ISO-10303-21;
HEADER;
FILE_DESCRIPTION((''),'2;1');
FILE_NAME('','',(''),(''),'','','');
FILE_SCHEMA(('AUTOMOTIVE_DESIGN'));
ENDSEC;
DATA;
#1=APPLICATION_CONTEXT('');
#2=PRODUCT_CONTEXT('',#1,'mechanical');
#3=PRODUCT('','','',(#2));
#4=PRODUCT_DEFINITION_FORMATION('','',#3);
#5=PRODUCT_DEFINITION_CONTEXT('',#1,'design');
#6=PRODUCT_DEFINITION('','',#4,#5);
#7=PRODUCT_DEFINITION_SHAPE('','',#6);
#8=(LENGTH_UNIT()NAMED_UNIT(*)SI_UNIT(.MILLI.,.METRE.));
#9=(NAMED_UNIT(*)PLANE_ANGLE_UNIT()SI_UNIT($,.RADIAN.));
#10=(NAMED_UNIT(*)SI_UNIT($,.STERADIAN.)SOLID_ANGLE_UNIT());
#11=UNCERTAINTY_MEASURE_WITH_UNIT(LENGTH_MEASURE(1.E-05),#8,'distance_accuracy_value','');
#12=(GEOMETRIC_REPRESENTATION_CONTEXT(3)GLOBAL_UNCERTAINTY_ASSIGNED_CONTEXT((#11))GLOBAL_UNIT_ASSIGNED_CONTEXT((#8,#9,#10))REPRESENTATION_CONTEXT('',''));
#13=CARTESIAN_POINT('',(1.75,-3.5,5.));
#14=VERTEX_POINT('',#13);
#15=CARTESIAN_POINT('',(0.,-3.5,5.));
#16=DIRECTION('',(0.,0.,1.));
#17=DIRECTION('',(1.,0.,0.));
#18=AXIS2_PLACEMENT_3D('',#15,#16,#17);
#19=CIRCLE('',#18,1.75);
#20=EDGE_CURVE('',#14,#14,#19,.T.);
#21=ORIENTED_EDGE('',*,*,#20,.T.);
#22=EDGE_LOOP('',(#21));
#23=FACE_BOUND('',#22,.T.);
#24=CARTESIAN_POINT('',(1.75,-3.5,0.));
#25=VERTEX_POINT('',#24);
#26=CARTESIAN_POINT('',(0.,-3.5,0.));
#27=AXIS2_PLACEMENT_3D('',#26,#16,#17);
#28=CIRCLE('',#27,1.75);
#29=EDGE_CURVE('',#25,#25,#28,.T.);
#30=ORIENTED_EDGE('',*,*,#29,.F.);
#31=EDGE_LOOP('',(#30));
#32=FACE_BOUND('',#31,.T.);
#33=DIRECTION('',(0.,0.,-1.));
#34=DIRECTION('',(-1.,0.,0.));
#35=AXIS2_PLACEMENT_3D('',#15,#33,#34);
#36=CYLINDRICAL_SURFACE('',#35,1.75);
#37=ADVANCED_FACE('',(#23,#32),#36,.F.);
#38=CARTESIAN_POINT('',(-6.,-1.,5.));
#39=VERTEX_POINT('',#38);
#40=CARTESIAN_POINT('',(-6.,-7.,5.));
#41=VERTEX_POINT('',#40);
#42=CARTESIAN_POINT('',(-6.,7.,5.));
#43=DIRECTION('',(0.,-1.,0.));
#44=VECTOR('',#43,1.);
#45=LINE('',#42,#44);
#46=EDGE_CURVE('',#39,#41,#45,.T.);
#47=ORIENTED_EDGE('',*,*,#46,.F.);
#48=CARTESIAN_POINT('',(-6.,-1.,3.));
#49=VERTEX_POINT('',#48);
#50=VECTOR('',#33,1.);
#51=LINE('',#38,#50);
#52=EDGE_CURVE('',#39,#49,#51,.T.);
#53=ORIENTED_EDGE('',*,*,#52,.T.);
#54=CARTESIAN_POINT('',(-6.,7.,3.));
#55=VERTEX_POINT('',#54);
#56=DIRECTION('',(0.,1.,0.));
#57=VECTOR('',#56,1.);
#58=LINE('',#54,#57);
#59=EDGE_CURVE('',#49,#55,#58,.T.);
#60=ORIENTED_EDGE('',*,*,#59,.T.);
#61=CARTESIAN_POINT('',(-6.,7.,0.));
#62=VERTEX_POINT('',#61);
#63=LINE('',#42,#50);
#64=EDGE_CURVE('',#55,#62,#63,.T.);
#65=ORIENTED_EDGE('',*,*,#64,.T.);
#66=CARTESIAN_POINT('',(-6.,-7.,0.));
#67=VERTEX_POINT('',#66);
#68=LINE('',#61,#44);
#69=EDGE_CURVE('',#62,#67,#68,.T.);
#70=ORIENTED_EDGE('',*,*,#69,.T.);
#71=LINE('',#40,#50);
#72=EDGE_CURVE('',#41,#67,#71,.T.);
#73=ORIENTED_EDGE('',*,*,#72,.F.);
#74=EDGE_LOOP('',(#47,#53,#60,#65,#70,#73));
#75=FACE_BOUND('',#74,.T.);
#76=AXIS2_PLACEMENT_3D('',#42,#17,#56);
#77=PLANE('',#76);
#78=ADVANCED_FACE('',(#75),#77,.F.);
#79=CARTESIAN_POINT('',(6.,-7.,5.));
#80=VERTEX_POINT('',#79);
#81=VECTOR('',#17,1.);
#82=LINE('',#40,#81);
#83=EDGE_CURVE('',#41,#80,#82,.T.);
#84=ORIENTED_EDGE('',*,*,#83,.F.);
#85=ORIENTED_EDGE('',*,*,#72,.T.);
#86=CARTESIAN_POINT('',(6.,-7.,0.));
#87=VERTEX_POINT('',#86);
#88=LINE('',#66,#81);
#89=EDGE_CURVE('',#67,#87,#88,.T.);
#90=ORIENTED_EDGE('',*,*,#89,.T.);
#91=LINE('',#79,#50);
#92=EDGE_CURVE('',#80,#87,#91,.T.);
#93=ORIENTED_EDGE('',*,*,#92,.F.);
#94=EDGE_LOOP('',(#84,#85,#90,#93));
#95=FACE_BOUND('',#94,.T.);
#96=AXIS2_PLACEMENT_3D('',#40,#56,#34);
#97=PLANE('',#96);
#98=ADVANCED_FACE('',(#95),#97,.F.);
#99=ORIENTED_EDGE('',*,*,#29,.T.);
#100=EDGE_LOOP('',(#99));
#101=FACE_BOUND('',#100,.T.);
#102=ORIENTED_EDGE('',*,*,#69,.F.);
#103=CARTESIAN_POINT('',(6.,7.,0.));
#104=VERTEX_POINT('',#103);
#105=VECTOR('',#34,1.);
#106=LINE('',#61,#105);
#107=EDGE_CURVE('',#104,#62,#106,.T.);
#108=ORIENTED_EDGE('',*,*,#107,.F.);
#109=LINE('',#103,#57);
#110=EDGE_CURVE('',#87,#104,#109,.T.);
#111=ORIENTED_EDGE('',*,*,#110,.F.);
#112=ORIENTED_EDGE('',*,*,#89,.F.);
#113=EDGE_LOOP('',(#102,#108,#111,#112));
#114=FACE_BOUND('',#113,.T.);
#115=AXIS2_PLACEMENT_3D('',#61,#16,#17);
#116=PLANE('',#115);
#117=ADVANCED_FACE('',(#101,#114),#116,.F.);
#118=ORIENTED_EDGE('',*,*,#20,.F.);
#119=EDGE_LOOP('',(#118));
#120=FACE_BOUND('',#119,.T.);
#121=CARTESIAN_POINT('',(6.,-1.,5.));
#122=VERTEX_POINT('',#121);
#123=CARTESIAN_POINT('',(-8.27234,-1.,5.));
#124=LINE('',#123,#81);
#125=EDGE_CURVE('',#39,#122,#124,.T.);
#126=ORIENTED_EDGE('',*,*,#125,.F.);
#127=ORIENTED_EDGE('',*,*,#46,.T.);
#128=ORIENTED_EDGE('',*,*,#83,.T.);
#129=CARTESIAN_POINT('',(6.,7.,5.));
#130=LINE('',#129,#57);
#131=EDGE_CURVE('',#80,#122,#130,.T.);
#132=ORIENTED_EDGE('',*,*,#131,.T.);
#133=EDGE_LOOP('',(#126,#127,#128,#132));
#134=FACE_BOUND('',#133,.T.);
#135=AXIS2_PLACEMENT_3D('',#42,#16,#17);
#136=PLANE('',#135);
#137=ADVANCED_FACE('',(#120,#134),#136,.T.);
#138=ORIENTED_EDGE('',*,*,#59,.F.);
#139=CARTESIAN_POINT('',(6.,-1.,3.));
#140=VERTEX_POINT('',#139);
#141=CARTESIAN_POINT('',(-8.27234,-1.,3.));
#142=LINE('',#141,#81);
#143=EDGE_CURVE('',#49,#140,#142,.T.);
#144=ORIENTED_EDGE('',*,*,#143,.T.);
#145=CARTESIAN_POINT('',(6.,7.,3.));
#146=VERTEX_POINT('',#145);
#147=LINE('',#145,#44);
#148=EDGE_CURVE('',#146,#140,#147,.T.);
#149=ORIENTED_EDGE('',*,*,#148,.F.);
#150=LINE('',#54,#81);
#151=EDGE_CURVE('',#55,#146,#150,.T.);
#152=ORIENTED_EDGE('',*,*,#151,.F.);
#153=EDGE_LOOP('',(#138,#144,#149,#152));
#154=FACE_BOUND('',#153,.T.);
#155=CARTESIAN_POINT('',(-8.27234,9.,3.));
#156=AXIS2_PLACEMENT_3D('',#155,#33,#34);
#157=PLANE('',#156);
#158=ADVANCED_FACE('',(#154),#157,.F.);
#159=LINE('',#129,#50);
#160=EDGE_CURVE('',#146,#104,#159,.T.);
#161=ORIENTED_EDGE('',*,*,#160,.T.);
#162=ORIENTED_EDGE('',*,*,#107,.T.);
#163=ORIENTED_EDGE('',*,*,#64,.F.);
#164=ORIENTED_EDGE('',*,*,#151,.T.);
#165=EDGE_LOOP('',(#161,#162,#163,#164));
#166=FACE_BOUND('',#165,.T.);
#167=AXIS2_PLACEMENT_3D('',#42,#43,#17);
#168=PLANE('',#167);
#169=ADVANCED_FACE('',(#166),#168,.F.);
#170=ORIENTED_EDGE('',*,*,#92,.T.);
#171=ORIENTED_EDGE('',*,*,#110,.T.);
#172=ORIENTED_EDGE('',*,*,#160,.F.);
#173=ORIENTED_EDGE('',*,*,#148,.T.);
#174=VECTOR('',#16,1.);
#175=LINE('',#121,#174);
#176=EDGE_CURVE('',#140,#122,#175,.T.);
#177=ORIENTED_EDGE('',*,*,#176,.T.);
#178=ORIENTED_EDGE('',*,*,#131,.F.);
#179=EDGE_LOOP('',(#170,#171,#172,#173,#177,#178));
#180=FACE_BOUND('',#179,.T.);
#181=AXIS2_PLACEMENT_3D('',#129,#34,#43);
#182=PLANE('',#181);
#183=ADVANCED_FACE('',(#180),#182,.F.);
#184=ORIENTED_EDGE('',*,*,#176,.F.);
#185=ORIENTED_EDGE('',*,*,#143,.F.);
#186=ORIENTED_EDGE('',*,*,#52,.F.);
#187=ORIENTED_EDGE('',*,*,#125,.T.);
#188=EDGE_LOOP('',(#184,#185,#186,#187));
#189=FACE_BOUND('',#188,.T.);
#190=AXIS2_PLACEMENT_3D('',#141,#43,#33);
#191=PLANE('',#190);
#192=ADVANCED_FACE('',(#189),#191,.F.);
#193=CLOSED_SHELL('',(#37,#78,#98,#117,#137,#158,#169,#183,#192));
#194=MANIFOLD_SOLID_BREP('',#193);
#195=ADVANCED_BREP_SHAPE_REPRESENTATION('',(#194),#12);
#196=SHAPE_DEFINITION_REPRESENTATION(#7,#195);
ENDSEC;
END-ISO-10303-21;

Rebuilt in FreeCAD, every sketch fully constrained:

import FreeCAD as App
import Part
import Sketcher

V = App.Vector

doc = App.newDocument("Part")
params = doc.addObject("Spreadsheet::Sheet", "Params")
for row, (alias, value) in enumerate([
    ("sketch1_diameter", "3.5 mm"),
    ("sketch1_width", "12 mm"),
    ("sketch1_height", "14 mm"),
    ("pad1_length", "5 mm"),
    ("sketch2_height", "10 mm"),
    ("pocket1_length", "2 mm"),
], start=1):
    params.set(f"A{row}", alias)
    params.set(f"B{row}", "=" + value)
    params.setAlias(f"B{row}", alias)

body = doc.addObject("PartDesign::Body", "Body")

sketch1 = body.newObject("Sketcher::SketchObject", "Sketch")
sketch1.AttachmentSupport = (doc.getObject("XY_Plane"), [""])
sketch1.MapMode = "FlatFace"
sketch1.addGeometry([
    Part.LineSegment(V(-6, 7, 0), V(-6, -7, 0)),
    Part.LineSegment(V(-6, -7, 0), V(6, -7, 0)),
    Part.LineSegment(V(6, -7, 0), V(6, 7, 0)),
    Part.LineSegment(V(6, 7, 0), V(-6, 7, 0)),
    Part.Circle(V(0, -3.5, 0), V(0, 0, 1), 1.8),
], False)
sketch1.addConstraint([
    Sketcher.Constraint("Coincident", 0, 2, 1, 1),
    Sketcher.Constraint("Coincident", 1, 2, 2, 1),
    Sketcher.Constraint("Coincident", 2, 2, 3, 1),
    Sketcher.Constraint("Coincident", 3, 2, 0, 1),
    Sketcher.Constraint("Vertical", 0),
    Sketcher.Constraint("Horizontal", 1),
    Sketcher.Constraint("Vertical", 2),
    Sketcher.Constraint("Horizontal", 3),
    Sketcher.Constraint("Symmetric", 0, 2, 2, 2, -1, 1),
    Sketcher.Constraint("PointOnObject", 4, 3, -2),
    Sketcher.Constraint("Diameter", 4, 3.5),
    Sketcher.Constraint("DistanceX", 1, 1, 1, 2, 12.0),
    Sketcher.Constraint("DistanceY", 0, 2, 0, 1, 14.0),
    Sketcher.Constraint("DistanceY", 4, 3, -1, 1, 3.5),
])
sketch1.setExpression("Constraints[10]", "Params.sketch1_diameter")
sketch1.setExpression("Constraints[11]", "Params.sketch1_width")
sketch1.setExpression("Constraints[12]", "Params.sketch1_height")
pad1 = body.newObject("PartDesign::Pad", "Pad")
pad1.Profile = sketch1
pad1.setExpression("Length", "Params.pad1_length")

sketch2 = body.newObject("Sketcher::SketchObject", "Sketch001")
sketch2.AttachmentSupport = (doc.getObject("XY_Plane"), [""])
sketch2.MapMode = "FlatFace"
sketch2.AttachmentOffset = App.Placement(V(0, 0, 5), App.Rotation())
sketch2.addGeometry([
    Part.LineSegment(V(-8, 9, 0), V(-8, -1, 0)),
    Part.LineSegment(V(-8, -1, 0), V(8, -1, 0)),
    Part.LineSegment(V(8, -1, 0), V(8, 9, 0)),
    Part.LineSegment(V(8, 9, 0), V(-8, 9, 0)),
], False)
sketch2.addConstraint([
    Sketcher.Constraint("Coincident", 0, 2, 1, 1),
    Sketcher.Constraint("Coincident", 1, 2, 2, 1),
    Sketcher.Constraint("Coincident", 2, 2, 3, 1),
    Sketcher.Constraint("Coincident", 3, 2, 0, 1),
    Sketcher.Constraint("Vertical", 0),
    Sketcher.Constraint("Horizontal", 1),
    Sketcher.Constraint("Vertical", 2),
    Sketcher.Constraint("Horizontal", 3),
    Sketcher.Constraint("DistanceY", 0, 2, 0, 1, 10.0),
    Sketcher.Constraint("DistanceY", 0, 2, -1, 1, 1.0),
    Sketcher.Constraint("DistanceX", 1, 1, 1, 2, 16.082842),
    Sketcher.Constraint("DistanceX", -1, 1, 1, 2, 7.810502),
])
sketch2.setExpression("Constraints[8]", "Params.sketch2_height")
pocket1 = body.newObject("PartDesign::Pocket", "Pocket")
pocket1.Profile = sketch2
pocket1.setExpression("Length", "Params.pocket1_length")

doc.recompute()
